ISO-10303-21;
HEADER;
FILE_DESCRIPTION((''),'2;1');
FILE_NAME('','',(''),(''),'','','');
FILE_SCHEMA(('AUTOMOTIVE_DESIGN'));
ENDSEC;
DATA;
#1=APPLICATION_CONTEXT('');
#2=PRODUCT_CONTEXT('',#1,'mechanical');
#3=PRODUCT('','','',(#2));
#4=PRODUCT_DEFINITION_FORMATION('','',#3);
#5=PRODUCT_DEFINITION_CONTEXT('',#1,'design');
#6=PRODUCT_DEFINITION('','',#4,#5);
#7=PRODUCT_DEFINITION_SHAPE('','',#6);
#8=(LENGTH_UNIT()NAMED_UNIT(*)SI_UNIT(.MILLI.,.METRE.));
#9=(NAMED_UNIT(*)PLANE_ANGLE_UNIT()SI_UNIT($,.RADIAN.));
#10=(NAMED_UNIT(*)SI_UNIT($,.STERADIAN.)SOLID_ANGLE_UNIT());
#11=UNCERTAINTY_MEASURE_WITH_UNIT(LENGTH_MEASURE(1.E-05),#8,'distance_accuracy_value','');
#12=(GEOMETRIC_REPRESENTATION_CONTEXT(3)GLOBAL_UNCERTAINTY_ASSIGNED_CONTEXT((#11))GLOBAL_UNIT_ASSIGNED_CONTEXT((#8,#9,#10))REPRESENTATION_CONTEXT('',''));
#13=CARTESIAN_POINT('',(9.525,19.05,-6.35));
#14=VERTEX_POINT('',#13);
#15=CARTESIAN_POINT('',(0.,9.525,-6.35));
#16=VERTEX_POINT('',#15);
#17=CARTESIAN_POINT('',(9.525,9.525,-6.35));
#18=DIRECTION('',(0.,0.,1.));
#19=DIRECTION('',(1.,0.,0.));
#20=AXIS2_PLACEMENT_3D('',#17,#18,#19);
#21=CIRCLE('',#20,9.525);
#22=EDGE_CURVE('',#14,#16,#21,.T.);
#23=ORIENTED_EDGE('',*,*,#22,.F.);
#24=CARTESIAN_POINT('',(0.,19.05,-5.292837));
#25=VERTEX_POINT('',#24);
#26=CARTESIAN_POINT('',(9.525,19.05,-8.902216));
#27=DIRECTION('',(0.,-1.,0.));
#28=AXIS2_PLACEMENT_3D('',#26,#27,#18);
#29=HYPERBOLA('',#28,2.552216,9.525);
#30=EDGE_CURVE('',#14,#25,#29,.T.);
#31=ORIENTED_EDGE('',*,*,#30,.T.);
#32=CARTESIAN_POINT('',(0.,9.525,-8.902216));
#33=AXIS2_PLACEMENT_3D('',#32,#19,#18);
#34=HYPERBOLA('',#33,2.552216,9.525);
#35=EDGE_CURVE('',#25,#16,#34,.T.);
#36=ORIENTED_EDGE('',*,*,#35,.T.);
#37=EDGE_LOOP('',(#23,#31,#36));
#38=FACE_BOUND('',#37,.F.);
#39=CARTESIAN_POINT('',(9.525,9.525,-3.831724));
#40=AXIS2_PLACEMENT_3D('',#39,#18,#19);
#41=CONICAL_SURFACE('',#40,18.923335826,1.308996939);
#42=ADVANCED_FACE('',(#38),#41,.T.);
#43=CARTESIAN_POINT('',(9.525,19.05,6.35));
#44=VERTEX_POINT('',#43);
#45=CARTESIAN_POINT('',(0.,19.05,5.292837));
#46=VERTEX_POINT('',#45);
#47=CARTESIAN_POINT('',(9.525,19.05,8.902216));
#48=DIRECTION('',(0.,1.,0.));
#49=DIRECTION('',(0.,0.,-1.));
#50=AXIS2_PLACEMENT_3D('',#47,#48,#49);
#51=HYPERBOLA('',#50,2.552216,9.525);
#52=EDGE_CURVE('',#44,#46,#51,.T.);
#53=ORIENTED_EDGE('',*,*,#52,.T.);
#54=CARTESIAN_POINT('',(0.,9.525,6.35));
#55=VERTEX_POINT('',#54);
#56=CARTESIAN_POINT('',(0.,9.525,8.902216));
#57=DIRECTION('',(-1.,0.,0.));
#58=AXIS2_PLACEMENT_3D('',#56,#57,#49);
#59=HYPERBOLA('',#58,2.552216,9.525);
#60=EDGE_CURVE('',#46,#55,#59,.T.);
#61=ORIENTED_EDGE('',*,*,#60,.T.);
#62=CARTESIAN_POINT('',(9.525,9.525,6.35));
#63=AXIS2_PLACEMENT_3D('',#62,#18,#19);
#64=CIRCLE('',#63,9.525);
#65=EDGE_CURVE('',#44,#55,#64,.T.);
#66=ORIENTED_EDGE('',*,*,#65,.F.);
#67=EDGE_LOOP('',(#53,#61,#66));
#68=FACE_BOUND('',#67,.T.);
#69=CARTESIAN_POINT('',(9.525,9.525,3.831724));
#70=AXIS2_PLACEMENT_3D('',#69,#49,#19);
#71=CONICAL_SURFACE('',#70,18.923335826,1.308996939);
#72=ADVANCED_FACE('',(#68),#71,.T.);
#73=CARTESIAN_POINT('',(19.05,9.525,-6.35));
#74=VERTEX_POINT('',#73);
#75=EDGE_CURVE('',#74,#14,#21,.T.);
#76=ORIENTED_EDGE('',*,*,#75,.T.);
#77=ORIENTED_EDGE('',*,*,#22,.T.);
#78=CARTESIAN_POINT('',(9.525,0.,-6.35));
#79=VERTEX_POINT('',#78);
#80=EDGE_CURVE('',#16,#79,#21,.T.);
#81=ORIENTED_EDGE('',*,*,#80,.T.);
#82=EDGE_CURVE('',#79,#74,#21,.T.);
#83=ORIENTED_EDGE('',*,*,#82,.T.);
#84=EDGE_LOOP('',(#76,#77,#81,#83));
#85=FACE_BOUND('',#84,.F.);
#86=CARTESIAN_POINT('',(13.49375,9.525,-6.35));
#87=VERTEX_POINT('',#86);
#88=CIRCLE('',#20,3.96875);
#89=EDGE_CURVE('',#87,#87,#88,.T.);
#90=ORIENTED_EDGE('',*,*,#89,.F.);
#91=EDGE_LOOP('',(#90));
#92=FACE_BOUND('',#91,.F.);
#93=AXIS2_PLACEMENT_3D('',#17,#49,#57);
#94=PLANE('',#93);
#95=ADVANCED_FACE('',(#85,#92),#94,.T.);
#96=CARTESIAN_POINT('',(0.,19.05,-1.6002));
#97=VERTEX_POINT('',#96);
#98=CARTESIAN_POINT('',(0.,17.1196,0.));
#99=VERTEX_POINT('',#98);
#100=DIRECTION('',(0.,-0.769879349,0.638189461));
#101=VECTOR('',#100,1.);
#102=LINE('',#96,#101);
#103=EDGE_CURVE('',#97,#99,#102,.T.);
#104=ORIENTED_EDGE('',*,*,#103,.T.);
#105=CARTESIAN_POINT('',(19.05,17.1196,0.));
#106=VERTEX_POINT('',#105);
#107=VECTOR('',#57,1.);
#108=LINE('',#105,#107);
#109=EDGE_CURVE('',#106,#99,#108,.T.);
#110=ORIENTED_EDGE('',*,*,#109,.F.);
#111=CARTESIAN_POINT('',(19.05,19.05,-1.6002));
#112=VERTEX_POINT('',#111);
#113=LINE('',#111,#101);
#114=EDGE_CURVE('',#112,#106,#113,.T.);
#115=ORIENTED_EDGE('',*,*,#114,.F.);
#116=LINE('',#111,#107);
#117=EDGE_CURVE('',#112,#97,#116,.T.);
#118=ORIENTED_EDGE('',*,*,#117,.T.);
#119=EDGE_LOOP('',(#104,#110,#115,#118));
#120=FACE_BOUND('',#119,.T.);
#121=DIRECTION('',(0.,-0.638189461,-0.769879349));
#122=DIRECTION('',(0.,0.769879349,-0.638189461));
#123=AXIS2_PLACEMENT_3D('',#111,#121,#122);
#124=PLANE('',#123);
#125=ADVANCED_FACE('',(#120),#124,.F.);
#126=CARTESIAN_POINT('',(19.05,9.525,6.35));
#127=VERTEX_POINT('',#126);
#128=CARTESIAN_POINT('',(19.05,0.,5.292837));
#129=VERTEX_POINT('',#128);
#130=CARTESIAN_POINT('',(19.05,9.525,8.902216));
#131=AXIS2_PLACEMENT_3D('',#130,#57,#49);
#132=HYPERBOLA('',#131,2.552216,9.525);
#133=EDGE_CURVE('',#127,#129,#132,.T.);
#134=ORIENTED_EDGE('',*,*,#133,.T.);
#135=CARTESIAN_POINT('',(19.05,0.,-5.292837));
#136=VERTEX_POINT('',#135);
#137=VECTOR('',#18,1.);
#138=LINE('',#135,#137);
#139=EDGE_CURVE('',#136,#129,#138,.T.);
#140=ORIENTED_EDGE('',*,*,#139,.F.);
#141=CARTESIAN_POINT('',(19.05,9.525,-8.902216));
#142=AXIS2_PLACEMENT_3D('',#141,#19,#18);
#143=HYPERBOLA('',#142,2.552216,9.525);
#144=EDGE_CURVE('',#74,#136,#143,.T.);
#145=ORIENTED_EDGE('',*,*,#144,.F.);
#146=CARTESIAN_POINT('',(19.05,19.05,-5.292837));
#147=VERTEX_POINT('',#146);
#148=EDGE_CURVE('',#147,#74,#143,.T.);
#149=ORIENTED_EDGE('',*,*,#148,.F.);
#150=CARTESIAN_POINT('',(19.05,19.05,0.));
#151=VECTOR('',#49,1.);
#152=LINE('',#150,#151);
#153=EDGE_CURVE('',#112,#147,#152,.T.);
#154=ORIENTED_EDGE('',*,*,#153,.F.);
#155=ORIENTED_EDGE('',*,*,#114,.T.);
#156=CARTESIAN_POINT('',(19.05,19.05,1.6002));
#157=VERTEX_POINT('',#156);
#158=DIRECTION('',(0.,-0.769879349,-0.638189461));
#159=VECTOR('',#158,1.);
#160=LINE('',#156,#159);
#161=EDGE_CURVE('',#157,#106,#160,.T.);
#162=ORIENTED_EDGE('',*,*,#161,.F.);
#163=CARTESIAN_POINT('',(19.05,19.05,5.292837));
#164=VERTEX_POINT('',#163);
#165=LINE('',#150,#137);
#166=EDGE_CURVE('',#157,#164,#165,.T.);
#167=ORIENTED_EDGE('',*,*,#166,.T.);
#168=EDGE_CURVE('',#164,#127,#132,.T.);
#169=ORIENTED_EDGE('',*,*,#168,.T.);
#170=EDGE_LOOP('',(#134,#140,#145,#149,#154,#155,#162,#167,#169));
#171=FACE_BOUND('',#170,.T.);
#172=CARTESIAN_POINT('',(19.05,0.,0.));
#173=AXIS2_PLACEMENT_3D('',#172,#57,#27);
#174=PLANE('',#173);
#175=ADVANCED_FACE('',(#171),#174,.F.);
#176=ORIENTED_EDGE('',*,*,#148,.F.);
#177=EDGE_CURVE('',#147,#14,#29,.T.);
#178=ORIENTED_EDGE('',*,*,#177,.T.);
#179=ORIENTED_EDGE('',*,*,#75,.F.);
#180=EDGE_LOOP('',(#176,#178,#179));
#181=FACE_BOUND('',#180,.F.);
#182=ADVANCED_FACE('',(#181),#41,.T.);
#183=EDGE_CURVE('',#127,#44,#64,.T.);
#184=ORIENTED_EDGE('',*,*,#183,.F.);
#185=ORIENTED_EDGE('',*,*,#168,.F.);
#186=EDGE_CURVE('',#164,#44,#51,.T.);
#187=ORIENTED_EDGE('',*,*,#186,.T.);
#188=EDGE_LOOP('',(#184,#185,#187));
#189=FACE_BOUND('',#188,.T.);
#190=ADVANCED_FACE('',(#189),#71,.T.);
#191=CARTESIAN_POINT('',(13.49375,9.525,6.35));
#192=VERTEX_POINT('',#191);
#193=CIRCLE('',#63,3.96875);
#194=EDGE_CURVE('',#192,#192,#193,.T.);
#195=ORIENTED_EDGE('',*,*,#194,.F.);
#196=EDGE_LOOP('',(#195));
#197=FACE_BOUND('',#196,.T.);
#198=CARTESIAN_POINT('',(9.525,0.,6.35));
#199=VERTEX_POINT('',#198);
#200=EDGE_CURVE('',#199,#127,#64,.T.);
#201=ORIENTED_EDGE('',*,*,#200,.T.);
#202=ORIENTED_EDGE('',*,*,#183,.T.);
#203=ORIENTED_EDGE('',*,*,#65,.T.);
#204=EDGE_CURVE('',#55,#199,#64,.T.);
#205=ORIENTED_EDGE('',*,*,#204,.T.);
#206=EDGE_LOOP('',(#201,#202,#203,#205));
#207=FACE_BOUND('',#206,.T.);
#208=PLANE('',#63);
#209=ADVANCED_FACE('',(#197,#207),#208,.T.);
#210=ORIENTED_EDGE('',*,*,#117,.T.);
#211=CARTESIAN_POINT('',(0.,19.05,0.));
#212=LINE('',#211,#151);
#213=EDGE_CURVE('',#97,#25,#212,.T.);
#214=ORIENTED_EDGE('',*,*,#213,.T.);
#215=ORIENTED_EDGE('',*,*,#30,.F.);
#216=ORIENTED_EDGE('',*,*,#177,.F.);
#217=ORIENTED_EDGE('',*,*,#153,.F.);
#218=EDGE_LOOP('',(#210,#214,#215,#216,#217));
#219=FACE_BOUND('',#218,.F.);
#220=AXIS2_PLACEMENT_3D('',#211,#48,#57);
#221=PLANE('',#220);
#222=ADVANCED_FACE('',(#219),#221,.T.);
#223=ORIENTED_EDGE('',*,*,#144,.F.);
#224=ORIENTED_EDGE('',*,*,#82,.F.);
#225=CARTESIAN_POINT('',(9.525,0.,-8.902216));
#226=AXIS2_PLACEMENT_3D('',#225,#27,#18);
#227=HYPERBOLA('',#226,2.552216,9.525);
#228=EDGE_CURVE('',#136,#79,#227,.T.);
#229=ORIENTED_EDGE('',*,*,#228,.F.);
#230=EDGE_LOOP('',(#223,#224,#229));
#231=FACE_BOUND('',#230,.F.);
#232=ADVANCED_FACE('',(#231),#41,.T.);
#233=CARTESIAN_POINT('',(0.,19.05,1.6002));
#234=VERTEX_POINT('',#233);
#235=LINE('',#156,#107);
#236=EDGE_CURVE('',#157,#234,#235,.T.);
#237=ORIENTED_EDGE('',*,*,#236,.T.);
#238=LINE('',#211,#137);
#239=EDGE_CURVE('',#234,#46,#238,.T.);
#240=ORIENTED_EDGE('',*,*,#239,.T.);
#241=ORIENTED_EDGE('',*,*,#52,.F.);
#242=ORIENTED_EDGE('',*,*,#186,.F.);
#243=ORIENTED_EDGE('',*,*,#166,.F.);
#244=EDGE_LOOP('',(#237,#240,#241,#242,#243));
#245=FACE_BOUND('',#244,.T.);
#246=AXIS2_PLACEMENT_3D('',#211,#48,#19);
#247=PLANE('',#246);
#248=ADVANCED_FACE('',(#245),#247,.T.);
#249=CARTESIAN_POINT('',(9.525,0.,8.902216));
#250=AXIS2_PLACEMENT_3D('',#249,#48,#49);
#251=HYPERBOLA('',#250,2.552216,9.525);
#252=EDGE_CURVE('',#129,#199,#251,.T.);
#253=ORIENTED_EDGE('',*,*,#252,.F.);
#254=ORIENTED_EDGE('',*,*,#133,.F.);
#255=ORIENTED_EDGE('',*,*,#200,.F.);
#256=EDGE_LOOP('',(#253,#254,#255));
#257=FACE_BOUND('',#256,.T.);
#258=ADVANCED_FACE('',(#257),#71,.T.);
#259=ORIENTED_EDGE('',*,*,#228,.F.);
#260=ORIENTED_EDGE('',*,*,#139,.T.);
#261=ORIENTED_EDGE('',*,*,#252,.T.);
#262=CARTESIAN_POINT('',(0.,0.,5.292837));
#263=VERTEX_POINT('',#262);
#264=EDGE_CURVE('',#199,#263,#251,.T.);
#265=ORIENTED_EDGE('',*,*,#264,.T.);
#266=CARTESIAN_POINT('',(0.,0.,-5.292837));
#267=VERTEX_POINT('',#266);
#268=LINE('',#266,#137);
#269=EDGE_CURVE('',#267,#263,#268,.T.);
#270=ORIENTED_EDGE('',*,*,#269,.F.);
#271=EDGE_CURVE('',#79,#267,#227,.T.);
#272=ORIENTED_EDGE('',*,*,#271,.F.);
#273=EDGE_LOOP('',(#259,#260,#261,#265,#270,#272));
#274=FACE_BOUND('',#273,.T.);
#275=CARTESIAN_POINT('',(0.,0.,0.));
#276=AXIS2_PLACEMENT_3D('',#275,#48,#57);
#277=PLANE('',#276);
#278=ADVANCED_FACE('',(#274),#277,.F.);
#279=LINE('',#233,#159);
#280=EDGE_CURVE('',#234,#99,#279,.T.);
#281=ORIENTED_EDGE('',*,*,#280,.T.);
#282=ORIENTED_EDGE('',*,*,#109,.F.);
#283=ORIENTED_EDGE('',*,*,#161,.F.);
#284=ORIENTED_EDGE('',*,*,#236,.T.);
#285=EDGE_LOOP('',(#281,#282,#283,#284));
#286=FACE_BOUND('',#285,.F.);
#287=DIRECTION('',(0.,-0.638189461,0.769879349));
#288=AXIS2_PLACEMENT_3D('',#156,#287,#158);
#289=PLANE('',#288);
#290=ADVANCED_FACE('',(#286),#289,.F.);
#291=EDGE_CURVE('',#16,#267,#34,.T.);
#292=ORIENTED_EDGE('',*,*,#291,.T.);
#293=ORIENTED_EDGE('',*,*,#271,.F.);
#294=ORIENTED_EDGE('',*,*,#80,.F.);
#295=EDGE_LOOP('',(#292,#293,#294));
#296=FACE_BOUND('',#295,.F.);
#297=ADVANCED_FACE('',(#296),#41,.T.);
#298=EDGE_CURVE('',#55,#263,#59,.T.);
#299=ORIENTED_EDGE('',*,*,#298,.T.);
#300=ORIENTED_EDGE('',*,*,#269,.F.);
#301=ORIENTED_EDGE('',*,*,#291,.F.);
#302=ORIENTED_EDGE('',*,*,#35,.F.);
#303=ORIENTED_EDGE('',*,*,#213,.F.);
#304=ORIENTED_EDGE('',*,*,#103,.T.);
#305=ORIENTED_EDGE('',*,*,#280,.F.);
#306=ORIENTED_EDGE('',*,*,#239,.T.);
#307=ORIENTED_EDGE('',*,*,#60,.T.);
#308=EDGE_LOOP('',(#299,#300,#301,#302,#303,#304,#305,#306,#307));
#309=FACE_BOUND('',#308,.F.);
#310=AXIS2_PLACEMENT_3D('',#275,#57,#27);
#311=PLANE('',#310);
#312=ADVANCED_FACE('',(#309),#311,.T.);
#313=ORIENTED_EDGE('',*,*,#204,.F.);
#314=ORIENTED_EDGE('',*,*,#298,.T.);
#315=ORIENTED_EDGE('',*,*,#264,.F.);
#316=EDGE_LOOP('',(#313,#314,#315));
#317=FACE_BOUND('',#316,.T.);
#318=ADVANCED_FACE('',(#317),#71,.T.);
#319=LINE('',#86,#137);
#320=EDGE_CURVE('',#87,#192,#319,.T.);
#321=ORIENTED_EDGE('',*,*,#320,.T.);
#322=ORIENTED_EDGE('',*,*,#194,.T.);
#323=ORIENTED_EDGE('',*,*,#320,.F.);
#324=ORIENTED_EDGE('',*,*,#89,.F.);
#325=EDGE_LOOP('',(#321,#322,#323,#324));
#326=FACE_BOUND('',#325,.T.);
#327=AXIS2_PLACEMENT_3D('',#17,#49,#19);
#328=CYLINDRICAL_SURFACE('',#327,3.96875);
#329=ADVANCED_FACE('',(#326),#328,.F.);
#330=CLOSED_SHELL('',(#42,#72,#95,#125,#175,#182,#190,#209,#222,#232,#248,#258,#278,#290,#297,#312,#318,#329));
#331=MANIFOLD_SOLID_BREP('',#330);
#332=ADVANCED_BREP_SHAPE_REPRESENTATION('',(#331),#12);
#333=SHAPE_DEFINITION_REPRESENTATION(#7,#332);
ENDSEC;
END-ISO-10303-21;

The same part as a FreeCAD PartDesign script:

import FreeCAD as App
import Part
import Sketcher
from FreeCAD import Vector
Q = App.Units.Quantity

doc = App.newDocument("Part")
params = doc.addObject("Spreadsheet::Sheet", "Params")
for row, (alias, value) in enumerate([
    ("sketch1_width", "0.75 in"),
    ("pad1_length", "0.25 in"),
    ("sketch2_diameter", "0.3125 in"),
    ("pocket1_length", "0.5 in"),
    ("sketch3_width", "0.076 in"),
    ("sketch3_height", "0.063 in"),
    ("pocket2_length", "0.75 in"),
    ("sketch5_diameter", "0.75 in"),
], start=1):
    params.set(f"A{row}", alias)
    params.set(f"B{row}", "=" + value)
    params.setAlias(f"B{row}", alias)

body = doc.addObject("PartDesign::Body", "Body")

sketch1 = body.newObject("Sketcher::SketchObject", "Sketch")
sketch1.AttachmentSupport = (doc.getObject("XY_Plane"), [""])
sketch1.MapMode = "FlatFace"
sketch1.addGeometry([
    Part.LineSegment(Vector(0, 19, 0), Vector(0, 0, 0)),
    Part.LineSegment(Vector(0, 0, 0), Vector(19, 0, 0)),
    Part.LineSegment(Vector(19, 0, 0), Vector(19, 19, 0)),
    Part.LineSegment(Vector(19, 19, 0), Vector(0, 19, 0)),
], False)
sketch1.addConstraint([
    Sketcher.Constraint("Coincident", 0, 2, 1, 1),
    Sketcher.Constraint("Coincident", 1, 2, 2, 1),
    Sketcher.Constraint("Coincident", 2, 2, 3, 1),
    Sketcher.Constraint("Coincident", 3, 2, 0, 1),
    Sketcher.Constraint("Vertical", 0),
    Sketcher.Constraint("Horizontal", 1),
    Sketcher.Constraint("Vertical", 2),
    Sketcher.Constraint("Horizontal", 3),
    Sketcher.Constraint("Coincident", 0, 2, -1, 1),
    Sketcher.Constraint("Equal", 3, 0),
    Sketcher.Constraint("DistanceX", 1, 1, 1, 2, Q("0.75 in")),
])
sketch1.setExpression("Constraints[10]", "Params.sketch1_width")
pad1 = body.newObject("PartDesign::Pad", "Pad")
pad1.Profile = sketch1
pad1.setExpression("Length", "Params.pad1_length")

sketch2 = body.newObject("Sketcher::SketchObject", "Sketch001")
sketch2.AttachmentSupport = (doc.getObject("XY_Plane"), [""])
sketch2.MapMode = "FlatFace"
sketch2.AttachmentOffset = App.Placement(Vector(0, 0, 0.25 * 25.4), App.Rotation())
sketch2.addGeometry(Part.Circle(Vector(9.5, 9.5, 0), Vector(0, 0, 1), 4), False)
sketch2.addConstraint([
    Sketcher.Constraint("Diameter", 0, Q("0.3125 in")),
    Sketcher.Constraint("DistanceX", -1, 1, 0, 3, Q("0.375 in")),
    Sketcher.Constraint("DistanceY", -1, 1, 0, 3, Q("0.375 in")),
])
sketch2.setExpression("Constraints[0]", "Params.sketch2_diameter")
pocket1 = body.newObject("PartDesign::Pocket", "Pocket")
pocket1.Profile = sketch2
pocket1.setExpression("Length", "Params.pocket1_length")

sketch3 = body.newObject("Sketcher::SketchObject", "Sketch002")
sketch3.AttachmentSupport = (doc.getObject("YZ_Plane"), [""])
sketch3.MapMode = "FlatFace"
sketch3.AttachmentOffset = App.Placement(Vector(0, 0, 0.75 * 25.4), App.Rotation())
sketch3.addGeometry([
    Part.LineSegment(Vector(17.1, 0, 0), Vector(19.1, 0, 0)),
    Part.LineSegment(Vector(19.1, 0, 0), Vector(19.1, 1.6, 0)),
    Part.LineSegment(Vector(19.1, 1.6, 0), Vector(17.1, 0, 0)),
], False)
sketch3.addConstraint([
    Sketcher.Constraint("Coincident", 0, 2, 1, 1),
    Sketcher.Constraint("Coincident", 1, 2, 2, 1),
    Sketcher.Constraint("Coincident", 2, 2, 0, 1),
    Sketcher.Constraint("Horizontal", 0),
    Sketcher.Constraint("Vertical", 1),
    Sketcher.Constraint("PointOnObject", 0, 2, -1),
    Sketcher.Constraint("DistanceX", 0, 1, 0, 2, Q("0.076 in")),
    Sketcher.Constraint("DistanceY", 1, 1, 1, 2, Q("0.063 in")),
    Sketcher.Constraint("DistanceX", -1, 1, 0, 2, Q("0.75 in")),
])
sketch3.setExpression("Constraints[6]", "Params.sketch3_width")
sketch3.setExpression("Constraints[7]", "Params.sketch3_height")
pocket2 = body.newObject("PartDesign::Pocket", "Pocket001")
pocket2.Profile = sketch3
pocket2.setExpression("Length", "Params.pocket2_length")

sketch4 = body.newObject("Sketcher::SketchObject", "Sketch003")
sketch4.AttachmentSupport = (doc.getObject("YZ_Plane"), [""])
sketch4.MapMode = "FlatFace"
sketch4.AttachmentOffset = App.Placement(Vector(0, 0, 0.375 * 25.4), App.Rotation())
sketch4.addGeometry([
    Part.LineSegment(Vector(28.4, 3.8, 0), Vector(19.1, 6.3, 0)),
    Part.LineSegment(Vector(19.1, 6.3, 0), Vector(28.4, 6.3, 0)),
    Part.LineSegment(Vector(28.4, 6.3, 0), Vector(28.4, 3.8, 0)),
], False)
sketch4.addConstraint([
    Sketcher.Constraint("Coincident", 0, 2, 1, 1),
    Sketcher.Constraint("Coincident", 1, 2, 2, 1),
    Sketcher.Constraint("Coincident", 2, 2, 0, 1),
    Sketcher.Constraint("Horizontal", 1),
    Sketcher.Constraint("Vertical", 2),
    Sketcher.Constraint("Angle", 0, Q("165 deg")),
    Sketcher.Constraint("DistanceX", -1, 1, 0, 2, Q("0.75 in")),
    Sketcher.Constraint("DistanceY", -1, 1, 0, 2, Q("0.25 in")),
    Sketcher.Constraint("DistanceX", 1, 1, 1, 2, Q("9.398336 mm")),
])

sketch5 = body.newObject("Sketcher::SketchObject", "Sketch004")
sketch5.AttachmentSupport = (doc.getObject("XY_Plane"), [""])
sketch5.MapMode = "FlatFace"
sketch5.AttachmentOffset = App.Placement(Vector(0, 0, 0.25 * 25.4), App.Rotation())
sketch5.addGeometry(Part.Circle(Vector(10, 10, 0), Vector(0, 0, 1), 10), False)
sketch5.addConstraint([
    Sketcher.Constraint("Diameter", 0, Q("0.75 in")),
    Sketcher.Constraint("DistanceX", -1, 1, 0, 3, Q("0.375 in")),
    Sketcher.Constraint("DistanceY", -1, 1, 0, 3, Q("0.375 in")),
])
sketch5.setExpression("Constraints[0]", "Params.sketch5_diameter")
doc.recompute()

subtractivepipe = body.newObject("PartDesign::SubtractivePipe", "SubtractivePipe")
subtractivepipe.Profile = sketch4
subtractivepipe.Spine = (sketch5, ["Edge1"])
body2 = doc.addObject("PartDesign::Body", "Body001")
doc.recompute()

body2.BaseFeature = body
doc.recompute()

mirroring = doc.addObject("Part::Mirroring", "Mirroring")
mirroring.Source = body
mirroring.Base = Vector(9.525, 8.387156, 0)
mirroring.Normal = Vector(0, 0, -1)
body3 = doc.addObject("PartDesign::Body", "Body002")
body3.BaseFeature = mirroring
boolean = body2.newObject("PartDesign::Boolean", "Boolean")
boolean.Type = "Fuse"
boolean.addObjects([body3])
doc.recompute()
mirroring.Visibility = False

doc.recompute()
